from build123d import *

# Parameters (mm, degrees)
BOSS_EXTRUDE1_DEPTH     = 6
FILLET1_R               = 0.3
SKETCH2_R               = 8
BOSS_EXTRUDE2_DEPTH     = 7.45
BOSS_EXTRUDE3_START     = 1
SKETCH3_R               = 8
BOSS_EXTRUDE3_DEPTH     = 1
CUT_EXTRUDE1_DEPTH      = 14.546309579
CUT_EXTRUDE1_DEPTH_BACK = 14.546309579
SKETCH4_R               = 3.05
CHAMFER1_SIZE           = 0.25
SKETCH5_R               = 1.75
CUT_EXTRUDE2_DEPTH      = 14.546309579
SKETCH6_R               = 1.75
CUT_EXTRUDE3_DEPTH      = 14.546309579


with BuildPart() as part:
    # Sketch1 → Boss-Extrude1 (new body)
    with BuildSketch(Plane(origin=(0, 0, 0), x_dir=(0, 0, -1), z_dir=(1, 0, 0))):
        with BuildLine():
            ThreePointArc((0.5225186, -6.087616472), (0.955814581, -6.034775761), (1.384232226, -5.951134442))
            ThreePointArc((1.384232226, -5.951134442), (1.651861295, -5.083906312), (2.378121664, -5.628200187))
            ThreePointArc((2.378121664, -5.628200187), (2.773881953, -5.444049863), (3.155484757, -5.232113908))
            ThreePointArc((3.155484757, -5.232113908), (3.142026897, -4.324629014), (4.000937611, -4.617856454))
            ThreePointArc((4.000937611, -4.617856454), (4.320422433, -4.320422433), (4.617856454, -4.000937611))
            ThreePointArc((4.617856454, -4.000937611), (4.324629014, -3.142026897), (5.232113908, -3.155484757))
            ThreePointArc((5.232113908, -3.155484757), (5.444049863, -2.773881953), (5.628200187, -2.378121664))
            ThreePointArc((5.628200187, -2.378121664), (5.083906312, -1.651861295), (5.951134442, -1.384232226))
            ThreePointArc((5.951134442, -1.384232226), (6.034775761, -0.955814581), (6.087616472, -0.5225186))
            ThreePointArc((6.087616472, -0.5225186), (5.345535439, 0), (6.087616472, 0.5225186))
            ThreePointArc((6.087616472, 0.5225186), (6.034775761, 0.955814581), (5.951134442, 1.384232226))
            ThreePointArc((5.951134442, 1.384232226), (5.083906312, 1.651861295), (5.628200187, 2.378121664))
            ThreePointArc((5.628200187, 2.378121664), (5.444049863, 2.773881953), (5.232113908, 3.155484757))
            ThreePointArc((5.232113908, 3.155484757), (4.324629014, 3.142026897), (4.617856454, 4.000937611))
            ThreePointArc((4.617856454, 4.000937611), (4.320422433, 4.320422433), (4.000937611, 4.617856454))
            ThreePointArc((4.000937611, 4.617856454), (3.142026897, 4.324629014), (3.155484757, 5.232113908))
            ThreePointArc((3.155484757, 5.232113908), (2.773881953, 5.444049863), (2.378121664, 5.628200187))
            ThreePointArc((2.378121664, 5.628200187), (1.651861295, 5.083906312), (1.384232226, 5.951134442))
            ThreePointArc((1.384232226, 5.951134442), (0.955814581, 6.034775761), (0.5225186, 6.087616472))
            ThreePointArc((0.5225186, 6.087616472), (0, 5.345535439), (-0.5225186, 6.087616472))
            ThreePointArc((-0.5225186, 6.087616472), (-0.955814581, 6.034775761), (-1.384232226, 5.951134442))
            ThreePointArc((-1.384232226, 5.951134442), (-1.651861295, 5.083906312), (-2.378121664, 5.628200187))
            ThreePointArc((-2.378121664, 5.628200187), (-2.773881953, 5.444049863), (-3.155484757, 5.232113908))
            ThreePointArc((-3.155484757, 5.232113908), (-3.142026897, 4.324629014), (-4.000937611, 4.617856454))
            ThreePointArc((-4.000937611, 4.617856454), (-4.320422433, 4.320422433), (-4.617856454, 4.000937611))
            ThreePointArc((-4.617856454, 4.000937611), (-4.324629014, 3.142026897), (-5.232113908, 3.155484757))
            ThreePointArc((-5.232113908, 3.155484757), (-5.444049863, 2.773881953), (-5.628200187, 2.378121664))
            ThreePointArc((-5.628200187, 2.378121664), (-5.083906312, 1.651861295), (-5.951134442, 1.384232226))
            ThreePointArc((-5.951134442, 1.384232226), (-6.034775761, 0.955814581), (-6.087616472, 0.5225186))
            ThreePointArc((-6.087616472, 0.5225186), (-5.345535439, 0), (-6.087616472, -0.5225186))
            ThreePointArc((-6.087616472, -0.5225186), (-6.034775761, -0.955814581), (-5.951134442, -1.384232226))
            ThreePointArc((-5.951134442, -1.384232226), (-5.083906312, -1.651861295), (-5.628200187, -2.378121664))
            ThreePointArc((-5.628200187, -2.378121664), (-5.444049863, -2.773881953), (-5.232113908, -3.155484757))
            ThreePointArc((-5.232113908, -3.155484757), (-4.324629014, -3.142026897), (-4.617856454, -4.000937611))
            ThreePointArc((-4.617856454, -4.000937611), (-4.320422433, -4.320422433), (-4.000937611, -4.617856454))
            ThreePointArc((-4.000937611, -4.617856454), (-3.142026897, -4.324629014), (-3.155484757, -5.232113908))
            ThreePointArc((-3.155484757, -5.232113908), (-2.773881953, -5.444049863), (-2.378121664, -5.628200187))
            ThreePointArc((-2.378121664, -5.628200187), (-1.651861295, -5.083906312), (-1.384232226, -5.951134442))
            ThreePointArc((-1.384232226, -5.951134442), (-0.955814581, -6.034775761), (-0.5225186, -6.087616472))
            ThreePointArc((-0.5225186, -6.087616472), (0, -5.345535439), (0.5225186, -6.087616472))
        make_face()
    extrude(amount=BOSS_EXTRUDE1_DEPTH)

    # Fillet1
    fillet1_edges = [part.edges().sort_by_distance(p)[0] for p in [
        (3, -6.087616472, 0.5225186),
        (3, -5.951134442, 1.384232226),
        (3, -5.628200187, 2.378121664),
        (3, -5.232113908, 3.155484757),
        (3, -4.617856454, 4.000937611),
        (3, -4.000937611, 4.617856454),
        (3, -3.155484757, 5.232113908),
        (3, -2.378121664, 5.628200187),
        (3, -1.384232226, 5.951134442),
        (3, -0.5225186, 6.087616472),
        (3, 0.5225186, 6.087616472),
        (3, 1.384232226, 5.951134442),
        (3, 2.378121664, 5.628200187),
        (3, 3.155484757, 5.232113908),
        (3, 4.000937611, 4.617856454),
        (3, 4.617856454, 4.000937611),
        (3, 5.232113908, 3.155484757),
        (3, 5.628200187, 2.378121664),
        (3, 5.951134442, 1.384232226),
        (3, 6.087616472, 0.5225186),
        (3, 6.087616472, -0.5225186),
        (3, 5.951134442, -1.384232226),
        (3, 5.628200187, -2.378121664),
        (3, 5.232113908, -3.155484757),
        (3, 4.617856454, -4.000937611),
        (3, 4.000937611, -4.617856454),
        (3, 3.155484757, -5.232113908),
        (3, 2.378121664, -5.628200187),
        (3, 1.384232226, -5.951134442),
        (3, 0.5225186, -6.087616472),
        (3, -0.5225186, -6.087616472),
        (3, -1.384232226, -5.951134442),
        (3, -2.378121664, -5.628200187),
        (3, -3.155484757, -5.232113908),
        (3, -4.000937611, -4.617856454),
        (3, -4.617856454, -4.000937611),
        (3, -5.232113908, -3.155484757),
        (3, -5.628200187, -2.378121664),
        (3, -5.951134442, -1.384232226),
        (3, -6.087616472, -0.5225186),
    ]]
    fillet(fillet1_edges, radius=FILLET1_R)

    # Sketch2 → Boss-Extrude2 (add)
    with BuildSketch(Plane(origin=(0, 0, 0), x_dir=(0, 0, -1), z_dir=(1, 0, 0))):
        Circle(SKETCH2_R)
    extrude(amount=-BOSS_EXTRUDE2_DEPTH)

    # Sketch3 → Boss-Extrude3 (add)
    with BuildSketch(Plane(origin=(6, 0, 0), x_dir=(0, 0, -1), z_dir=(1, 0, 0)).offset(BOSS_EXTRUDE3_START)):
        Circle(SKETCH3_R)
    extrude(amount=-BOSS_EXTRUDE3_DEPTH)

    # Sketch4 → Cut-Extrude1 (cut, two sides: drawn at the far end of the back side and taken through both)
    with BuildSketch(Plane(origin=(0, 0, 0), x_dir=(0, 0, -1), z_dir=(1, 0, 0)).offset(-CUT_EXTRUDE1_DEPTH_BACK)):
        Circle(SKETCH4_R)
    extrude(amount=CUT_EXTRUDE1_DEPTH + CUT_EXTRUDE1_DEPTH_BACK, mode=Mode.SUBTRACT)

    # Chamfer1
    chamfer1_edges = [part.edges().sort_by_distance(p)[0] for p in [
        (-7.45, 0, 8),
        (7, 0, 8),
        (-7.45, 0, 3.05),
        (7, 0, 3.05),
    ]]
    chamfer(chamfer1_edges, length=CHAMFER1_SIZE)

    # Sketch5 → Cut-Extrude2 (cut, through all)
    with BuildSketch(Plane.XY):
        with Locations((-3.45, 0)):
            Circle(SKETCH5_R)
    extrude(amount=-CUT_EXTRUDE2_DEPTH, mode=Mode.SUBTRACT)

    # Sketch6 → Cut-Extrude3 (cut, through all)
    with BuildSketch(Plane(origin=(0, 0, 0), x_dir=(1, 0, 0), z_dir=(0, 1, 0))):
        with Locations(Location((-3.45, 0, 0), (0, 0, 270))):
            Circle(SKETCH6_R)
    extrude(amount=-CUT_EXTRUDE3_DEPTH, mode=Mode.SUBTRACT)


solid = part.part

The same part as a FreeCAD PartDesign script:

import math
import FreeCAD as App
import Part
import Sketcher

V = App.Vector
Q = App.Units.Quantity


def edges_at(feature, points):
    """Names of the edges that pass closest to the given points."""
    edges = feature.Shape.Edges
    near = lambda p: min(range(len(edges)), key=lambda i: edges[i].distToShape(Part.Vertex(*p))[0])
    return sorted({f"Edge{near(p) + 1}" for p in points})

doc = App.newDocument("Part")
body = doc.addObject("PartDesign::Body", "Body")

# Sketch on YZ plane
sketch1 = body.newObject("Sketcher::SketchObject", "Sketch")
sketch1.AttachmentSupport = (doc.getObject("YZ_Plane"), [""])
sketch1.MapMode = "FlatFace"
sketch1.addGeometry([
    Part.ArcOfCircle(Part.Circle(V(0, 0, 0), V(0, 0, 1), 6.1), math.radians(-175.09), math.radians(-166.91)),  # 0
    Part.ArcOfCircle(Part.Circle(V(-5.6, -1.8, 0), V(0, 0, 1), 0.6), math.radians(-92), math.radians(128)),  # 1
    Part.ArcOfCircle(Part.Circle(V(0, 0, 0), V(0, 0, 1), 6.1), math.radians(-157.09), math.radians(-148.91)),  # 2
    Part.ArcOfCircle(Part.Circle(V(-4.8, -3.5, 0), V(0, 0, 1), 0.6), math.radians(-74), math.radians(146)),  # 3
    Part.ArcOfCircle(Part.Circle(V(0, 0, 0), V(0, 0, 1), 6.1), math.radians(-139.09), math.radians(-130.91)),  # 4
    Part.ArcOfCircle(Part.Circle(V(-3.5, -4.8, 0), V(0, 0, 1), 0.6), math.radians(-56), math.radians(164)),  # 5
    Part.ArcOfCircle(Part.Circle(V(0, 0, 0), V(0, 0, 1), 6.1), math.radians(-121.09), math.radians(-112.91)),  # 6
    Part.ArcOfCircle(Part.Circle(V(-1.8, -5.6, 0), V(0, 0, 1), 0.6), math.radians(-38), math.radians(182)),  # 7
    Part.ArcOfCircle(Part.Circle(V(0, 0, 0), V(0, 0, 1), 6.1), math.radians(-103.09), math.radians(-94.91)),  # 8
    Part.ArcOfCircle(Part.Circle(V(0, -5.9, 0), V(0, 0, 1), 0.6), math.radians(-20), math.radians(200)),  # 9
    Part.ArcOfCircle(Part.Circle(V(0, 0, 0), V(0, 0, 1), 6.1), math.radians(-85.09), math.radians(-76.91)),  # 10
    Part.ArcOfCircle(Part.Circle(V(1.8, -5.6, 0), V(0, 0, 1), 0.6), math.radians(-2), math.radians(218)),  # 11
    Part.ArcOfCircle(Part.Circle(V(0, 0, 0), V(0, 0, 1), 6.1), math.radians(-67.09), math.radians(-58.91)),  # 12
    Part.ArcOfCircle(Part.Circle(V(3.5, -4.8, 0), V(0, 0, 1), 0.6), math.radians(16), math.radians(236)),  # 13
    Part.ArcOfCircle(Part.Circle(V(0, 0, 0), V(0, 0, 1), 6.1), math.radians(-49.09), math.radians(-40.91)),  # 14
    Part.ArcOfCircle(Part.Circle(V(4.8, -3.5, 0), V(0, 0, 1), 0.6), math.radians(34), math.radians(254)),  # 15
    Part.ArcOfCircle(Part.Circle(V(0, 0, 0), V(0, 0, 1), 6.1), math.radians(-31.09), math.radians(-22.91)),  # 16
    Part.ArcOfCircle(Part.Circle(V(5.6, -1.8, 0), V(0, 0, 1), 0.6), math.radians(52), math.radians(272)),  # 17
    Part.ArcOfCircle(Part.Circle(V(0, 0, 0), V(0, 0, 1), 6.1), math.radians(-13.09), math.radians(-4.91)),  # 18
    Part.ArcOfCircle(Part.Circle(V(5.9, 0, 0), V(0, 0, 1), 0.6), math.radians(70), math.radians(290)),  # 19
    Part.ArcOfCircle(Part.Circle(V(0, 0, 0), V(0, 0, 1), 6.1), math.radians(4.91), math.radians(13.09)),  # 20
    Part.ArcOfCircle(Part.Circle(V(5.6, 1.8, 0), V(0, 0, 1), 0.6), math.radians(88), math.radians(308)),  # 21
    Part.ArcOfCircle(Part.Circle(V(0, 0, 0), V(0, 0, 1), 6.1), math.radians(22.91), math.radians(31.09)),  # 22
    Part.ArcOfCircle(Part.Circle(V(4.8, 3.5, 0), V(0, 0, 1), 0.6), math.radians(106), math.radians(326)),  # 23
    Part.ArcOfCircle(Part.Circle(V(0, 0, 0), V(0, 0, 1), 6.1), math.radians(40.91), math.radians(49.09)),  # 24
    Part.ArcOfCircle(Part.Circle(V(3.5, 4.8, 0), V(0, 0, 1), 0.6), math.radians(124), math.radians(344)),  # 25
    Part.ArcOfCircle(Part.Circle(V(0, 0, 0), V(0, 0, 1), 6.1), math.radians(58.91), math.radians(67.09)),  # 26
    Part.ArcOfCircle(Part.Circle(V(1.8, 5.6, 0), V(0, 0, 1), 0.6), math.radians(142), math.radians(362)),  # 27
    Part.ArcOfCircle(Part.Circle(V(0, 0, 0), V(0, 0, 1), 6.1), math.radians(76.91), math.radians(85.09)),  # 28
    Part.ArcOfCircle(Part.Circle(V(0, 5.9, 0), V(0, 0, 1), 0.6), math.radians(160), math.radians(380)),  # 29
    Part.ArcOfCircle(Part.Circle(V(0, 0, 0), V(0, 0, 1), 6.1), math.radians(94.91), math.radians(103.09)),  # 30
    Part.ArcOfCircle(Part.Circle(V(-1.8, 5.6, 0), V(0, 0, 1), 0.6), math.radians(178), math.radians(398)),  # 31
    Part.ArcOfCircle(Part.Circle(V(0, 0, 0), V(0, 0, 1), 6.1), math.radians(112.91), math.radians(121.09)),  # 32
    Part.ArcOfCircle(Part.Circle(V(-3.5, 4.8, 0), V(0, 0, 1), 0.6), math.radians(-164), math.radians(56)),  # 33
    Part.ArcOfCircle(Part.Circle(V(0, 0, 0), V(0, 0, 1), 6.1), math.radians(130.91), math.radians(139.09)),  # 34
    Part.ArcOfCircle(Part.Circle(V(-4.8, 3.5, 0), V(0, 0, 1), 0.6), math.radians(-146), math.radians(74)),  # 35
    Part.ArcOfCircle(Part.Circle(V(0, 0, 0), V(0, 0, 1), 6.1), math.radians(148.91), math.radians(157.09)),  # 36
    Part.ArcOfCircle(Part.Circle(V(-5.6, 1.8, 0), V(0, 0, 1), 0.6), math.radians(-128), math.radians(92)),  # 37
    Part.ArcOfCircle(Part.Circle(V(0, 0, 0), V(0, 0, 1), 6.1), math.radians(166.91), math.radians(175.09)),  # 38
    Part.ArcOfCircle(Part.Circle(V(-5.9, 0, 0), V(0, 0, 1), 0.6), math.radians(-110), math.radians(110)),  # 39
], False)
sketch1.addConstraint([
    Sketcher.Constraint("Coincident", 0, 2, 1, 2),
    Sketcher.Constraint("Coincident", 1, 1, 2, 1),
    Sketcher.Constraint("Coincident", 2, 2, 3, 2),
    Sketcher.Constraint("Coincident", 3, 1, 4, 1),
    Sketcher.Constraint("Coincident", 4, 2, 5, 2),
    Sketcher.Constraint("Coincident", 5, 1, 6, 1),
    Sketcher.Constraint("Coincident", 6, 2, 7, 2),
    Sketcher.Constraint("Coincident", 7, 1, 8, 1),
    Sketcher.Constraint("Coincident", 8, 2, 9, 2),
    Sketcher.Constraint("Coincident", 9, 1, 10, 1),
    Sketcher.Constraint("Coincident", 10, 2, 11, 2),
    Sketcher.Constraint("Coincident", 11, 1, 12, 1),
    Sketcher.Constraint("Coincident", 12, 2, 13, 2),
    Sketcher.Constraint("Coincident", 13, 1, 14, 1),
    Sketcher.Constraint("Coincident", 14, 2, 15, 2),
    Sketcher.Constraint("Coincident", 15, 1, 16, 1),
    Sketcher.Constraint("Coincident", 16, 2, 17, 2),
    Sketcher.Constraint("Coincident", 17, 1, 18, 1),
    Sketcher.Constraint("Coincident", 18, 2, 19, 2),
    Sketcher.Constraint("Coincident", 19, 1, 20, 1),
    Sketcher.Constraint("Coincident", 20, 2, 21, 2),
    Sketcher.Constraint("Coincident", 21, 1, 22, 1),
    Sketcher.Constraint("Coincident", 22, 2, 23, 2),
    Sketcher.Constraint("Coincident", 23, 1, 24, 1),
    Sketcher.Constraint("Coincident", 24, 2, 25, 2),
    Sketcher.Constraint("Coincident", 25, 1, 26, 1),
    Sketcher.Constraint("Coincident", 26, 2, 27, 2),
    Sketcher.Constraint("Coincident", 27, 1, 28, 1),
    Sketcher.Constraint("Coincident", 28, 2, 29, 2),
    Sketcher.Constraint("Coincident", 29, 1, 30, 1),
    Sketcher.Constraint("Coincident", 30, 2, 31, 2),
    Sketcher.Constraint("Coincident", 31, 1, 32, 1),
    Sketcher.Constraint("Coincident", 32, 2, 33, 2),
    Sketcher.Constraint("Coincident", 33, 1, 34, 1),
    Sketcher.Constraint("Coincident", 34, 2, 35, 2),
    Sketcher.Constraint("Coincident", 35, 1, 36, 1),
    Sketcher.Constraint("Coincident", 36, 2, 37, 2),
    Sketcher.Constraint("Coincident", 37, 1, 38, 1),
    Sketcher.Constraint("Coincident", 38, 2, 39, 2),
    Sketcher.Constraint("Coincident", 39, 1, 0, 1),
    Sketcher.Constraint("Coincident", 0, 3, -1, 1),
    Sketcher.Constraint("Coincident", 2, 3, -1, 1),
    Sketcher.Constraint("Coincident", 4, 3, -1, 1),
    Sketcher.Constraint("Coincident", 6, 3, -1, 1),
    Sketcher.Constraint("Coincident", 8, 3, -1, 1),
    Sketcher.Constraint("Coincident", 10, 3, -1, 1),
    Sketcher.Constraint("Coincident", 12, 3, -1, 1),
    Sketcher.Constraint("Coincident", 14, 3, -1, 1),
    Sketcher.Constraint("Coincident", 16, 3, -1, 1),
    Sketcher.Constraint("Coincident", 18, 3, -1, 1),
    Sketcher.Constraint("Coincident", 20, 3, -1, 1),
    Sketcher.Constraint("Coincident", 22, 3, -1, 1),
    Sketcher.Constraint("Coincident", 24, 3, -1, 1),
    Sketcher.Constraint("Coincident", 26, 3, -1, 1),
    Sketcher.Constraint("Coincident", 28, 3, -1, 1),
    Sketcher.Constraint("Coincident", 30, 3, -1, 1),
    Sketcher.Constraint("Coincident", 32, 3, -1, 1),
    Sketcher.Constraint("Coincident", 34, 3, -1, 1),
    Sketcher.Constraint("Coincident", 36, 3, -1, 1),
    Sketcher.Constraint("Coincident", 38, 3, -1, 1),
    Sketcher.Constraint("Equal", 0, 2),
    Sketcher.Constraint("Equal", 1, 3),
    Sketcher.Constraint("Equal", 2, 4),
    Sketcher.Constraint("Equal", 3, 5),
    Sketcher.Constraint("Equal", 4, 6),
    Sketcher.Constraint("Equal", 5, 7),
    Sketcher.Constraint("Equal", 6, 8),
    Sketcher.Constraint("Equal", 7, 9),
    Sketcher.Constraint("Equal", 8, 10),
    Sketcher.Constraint("Equal", 9, 11),
    Sketcher.Constraint("Equal", 10, 12),
    Sketcher.Constraint("Equal", 11, 13),
    Sketcher.Constraint("Equal", 12, 14),
    Sketcher.Constraint("Equal", 13, 15),
    Sketcher.Constraint("Equal", 14, 16),
    Sketcher.Constraint("Equal", 15, 17),
    Sketcher.Constraint("Equal", 16, 18),
    Sketcher.Constraint("Equal", 17, 19),
    Sketcher.Constraint("Equal", 18, 20),
    Sketcher.Constraint("Equal", 19, 21),
    Sketcher.Constraint("Equal", 20, 22),
    Sketcher.Constraint("Equal", 21, 23),
    Sketcher.Constraint("Equal", 22, 24),
    Sketcher.Constraint("Equal", 23, 25),
    Sketcher.Constraint("Equal", 24, 26),
    Sketcher.Constraint("Equal", 25, 27),
    Sketcher.Constraint("Equal", 26, 28),
    Sketcher.Constraint("Equal", 27, 29),
    Sketcher.Constraint("Equal", 28, 30),
    Sketcher.Constraint("Equal", 29, 31),
    Sketcher.Constraint("Equal", 30, 32),
    Sketcher.Constraint("Equal", 31, 33),
    Sketcher.Constraint("Equal", 32, 34),
    Sketcher.Constraint("Equal", 33, 35),
    Sketcher.Constraint("Equal", 34, 36),
    Sketcher.Constraint("Equal", 35, 37),
    Sketcher.Constraint("Equal", 36, 38),
    Sketcher.Constraint("Equal", 37, 39),
    Sketcher.Constraint("Symmetric", 1, 3, 21, 3, -1, 1),
    Sketcher.Constraint("Symmetric", 3, 3, 23, 3, -1, 1),
    Sketcher.Constraint("Symmetric", 5, 3, 25, 3, -1, 1),
    Sketcher.Constraint("Symmetric", 7, 3, 27, 3, -1, 1),
    Sketcher.Constraint("Symmetric", 9, 3, 29, 3, -1, 1),
    Sketcher.Constraint("Symmetric", 11, 3, 31, 3, -1, 1),
    Sketcher.Constraint("Symmetric", 13, 3, 33, 3, -1, 1),
    Sketcher.Constraint("Symmetric", 15, 3, 35, 3, -1, 1),
    Sketcher.Constraint("Symmetric", 17, 3, 37, 3, -1, 1),
    Sketcher.Constraint("Symmetric", 19, 3, 39, 3, -1, 1),
    Sketcher.Constraint("Symmetric", 7, 3, 11, 3, -2),
    Sketcher.Constraint("Symmetric", 5, 3, 13, 3, -2),
    Sketcher.Constraint("Symmetric", 3, 3, 15, 3, -2),
    Sketcher.Constraint("Symmetric", 1, 3, 17, 3, -2),
    Sketcher.Constraint("PointOnObject", 9, 3, -2),
    Sketcher.Constraint("PointOnObject", 19, 3, -1),
    Sketcher.Constraint("Radius", 0, Q("6.11 mm")),
    Sketcher.Constraint("Radius", 1, Q("0.555 mm")),
    Sketcher.Constraint("DistanceX", 1, 1, -1, 1, Q("5.6282 mm")),
    Sketcher.Constraint("DistanceY", 6, 2, -1, 1, Q("5.6282 mm")),
    Sketcher.Constraint("DistanceX", 8, 2, -1, 1, Q("0.522519 mm")),
    Sketcher.Constraint("DistanceY", 18, 2, -1, 1, Q("0.522519 mm")),
    Sketcher.Constraint("DistanceX", 1, 3, -1, 1, Q("5.611743 mm")),
    Sketcher.Constraint("DistanceX", 3, 3, -1, 1, Q("4.773633 mm")),
    Sketcher.Constraint("DistanceY", 3, 3, -1, 1, Q("3.468248 mm")),
    Sketcher.Constraint("DistanceX", 5, 3, -1, 1, Q("3.468248 mm")),
    Sketcher.Constraint("DistanceY", 5, 3, -1, 1, Q("4.773633 mm")),
    Sketcher.Constraint("DistanceX", 7, 3, -1, 1, Q("1.823366 mm")),
])
pad1 = body.newObject("PartDesign::Pad", "Pad")
pad1.Profile = sketch1
pad1.Length = 6
doc.recompute()

fillet = body.newObject("PartDesign::Fillet", "Fillet")
fillet.Base = (pad1, edges_at(pad1, [
    (3, -6.088, 0.523),
    (3, -5.951, 1.384),
    (3, -5.628, 2.378),
    (3, -5.232, 3.155),
    (3, -4.618, 4.001),
    (3, -4.001, 4.618),
    (3, -3.155, 5.232),
    (3, -2.378, 5.628),
    (3, -1.384, 5.951),
    (3, -0.523, 6.088),
    (3, 0.523, 6.088),
    (3, 1.384, 5.951),
    (3, 2.378, 5.628),
    (3, 3.155, 5.232),
    (3, 4.001, 4.618),
    (3, 4.618, 4.001),
    (3, 5.232, 3.155),
    (3, 5.628, 2.378),
    (3, 5.951, 1.384),
    (3, 6.088, 0.523),
    (3, 6.088, -0.523),
    (3, 5.951, -1.384),
    (3, 5.628, -2.378),
    (3, 5.232, -3.155),
    (3, 4.618, -4.001),
    (3, 4.001, -4.618),
    (3, 3.155, -5.232),
    (3, 2.378, -5.628),
    (3, 1.384, -5.951),
    (3, 0.523, -6.088),
    (3, -0.523, -6.088),
    (3, -1.384, -5.951),
    (3, -2.378, -5.628),
    (3, -3.155, -5.232),
    (3, -4.001, -4.618),
    (3, -4.618, -4.001),
    (3, -5.232, -3.155),
    (3, -5.628, -2.378),
    (3, -5.951, -1.384),
    (3, -6.088, -0.523),
]))
fillet.Radius = 0.3

# Sketch on YZ plane
sketch2 = body.newObject("Sketcher::SketchObject", "Sketch001")
sketch2.AttachmentSupport = (doc.getObject("YZ_Plane"), [""])
sketch2.MapMode = "FlatFace"
sketch2.addGeometry(Part.Circle(V(0, 0, 0), V(0, 0, 1), 8), False)
sketch2.addConstraint([
    Sketcher.Constraint("Coincident", 0, 3, -1, 1),
    Sketcher.Constraint("Diameter", 0, Q("16 mm")),
])
pad2 = body.newObject("PartDesign::Pad", "Pad001")
pad2.Profile = sketch2
pad2.Length = 7.45
pad2.Reversed = True

# Sketch on YZ plane
sketch3 = body.newObject("Sketcher::SketchObject", "Sketch002")
sketch3.AttachmentSupport = (doc.getObject("YZ_Plane"), [""])
sketch3.MapMode = "FlatFace"
sketch3.AttachmentOffset = App.Placement(V(0, 0, 7), App.Rotation())
sketch3.addGeometry(Part.Circle(V(0, 0, 0), V(0, 0, 1), 8), False)
sketch3.addConstraint([
    Sketcher.Constraint("Coincident", 0, 3, -1, 1),
    Sketcher.Constraint("Diameter", 0, Q("16 mm")),
])
pad3 = body.newObject("PartDesign::Pad", "Pad002")
pad3.Profile = sketch3
pad3.Length = 1
pad3.Reversed = True

# Sketch on YZ plane
sketch4 = body.newObject("Sketcher::SketchObject", "Sketch003")
sketch4.AttachmentSupport = (doc.getObject("YZ_Plane"), [""])
sketch4.MapMode = "FlatFace"
sketch4.addGeometry(Part.Circle(V(0, 0, 0), V(0, 0, 1), 3), False)
sketch4.addConstraint([
    Sketcher.Constraint("Coincident", 0, 3, -1, 1),
    Sketcher.Constraint("Diameter", 0, Q("6.1 mm")),
])
pocket1 = body.newObject("PartDesign::Pocket", "Pocket")
pocket1.Profile = sketch4
pocket1.Type = "ThroughAll"
pocket1.Midplane = True
doc.recompute()

chamfer = body.newObject("PartDesign::Chamfer", "Chamfer")
chamfer.Base = (pocket1, edges_at(pocket1, [
    (-7.45, 0, 8),
    (7, 0, 8),
    (-7.45, 0, 3.05),
    (7, 0, 3.05),
]))
chamfer.Size = 0.25

# Sketch on XY plane
sketch5 = body.newObject("Sketcher::SketchObject", "Sketch004")
sketch5.AttachmentSupport = (doc.getObject("XY_Plane"), [""])
sketch5.MapMode = "FlatFace"
sketch5.addGeometry(Part.Circle(V(-3.5, 0, 0), V(0, 0, 1), 1.8), False)
sketch5.addConstraint([
    Sketcher.Constraint("PointOnObject", 0, 3, -1),
    Sketcher.Constraint("Diameter", 0, Q("3.5 mm")),
    Sketcher.Constraint("DistanceX", 0, 3, -1, 1, Q("3.45 mm")),
])
pocket2 = body.newObject("PartDesign::Pocket", "Pocket001")
pocket2.Profile = sketch5
pocket2.Type = "ThroughAll"

# Sketch on XZ plane
sketch6 = body.newObject("Sketcher::SketchObject", "Sketch005")
sketch6.AttachmentSupport = (doc.getObject("XZ_Plane"), [""])
sketch6.MapMode = "FlatFace"
sketch6.addGeometry(Part.Circle(V(-3.5, 0, 0), V(0, 0, 1), 1.8), False)
sketch6.addConstraint([
    Sketcher.Constraint("PointOnObject", 0, 3, -1),
    Sketcher.Constraint("Diameter", 0, Q("3.5 mm")),
    Sketcher.Constraint("DistanceX", 0, 3, -1, 1, Q("3.45 mm")),
])
pocket3 = body.newObject("PartDesign::Pocket", "Pocket002")
pocket3.Profile = sketch6
pocket3.Type = "ThroughAll"
pocket3.Reversed = True

doc.recompute()
